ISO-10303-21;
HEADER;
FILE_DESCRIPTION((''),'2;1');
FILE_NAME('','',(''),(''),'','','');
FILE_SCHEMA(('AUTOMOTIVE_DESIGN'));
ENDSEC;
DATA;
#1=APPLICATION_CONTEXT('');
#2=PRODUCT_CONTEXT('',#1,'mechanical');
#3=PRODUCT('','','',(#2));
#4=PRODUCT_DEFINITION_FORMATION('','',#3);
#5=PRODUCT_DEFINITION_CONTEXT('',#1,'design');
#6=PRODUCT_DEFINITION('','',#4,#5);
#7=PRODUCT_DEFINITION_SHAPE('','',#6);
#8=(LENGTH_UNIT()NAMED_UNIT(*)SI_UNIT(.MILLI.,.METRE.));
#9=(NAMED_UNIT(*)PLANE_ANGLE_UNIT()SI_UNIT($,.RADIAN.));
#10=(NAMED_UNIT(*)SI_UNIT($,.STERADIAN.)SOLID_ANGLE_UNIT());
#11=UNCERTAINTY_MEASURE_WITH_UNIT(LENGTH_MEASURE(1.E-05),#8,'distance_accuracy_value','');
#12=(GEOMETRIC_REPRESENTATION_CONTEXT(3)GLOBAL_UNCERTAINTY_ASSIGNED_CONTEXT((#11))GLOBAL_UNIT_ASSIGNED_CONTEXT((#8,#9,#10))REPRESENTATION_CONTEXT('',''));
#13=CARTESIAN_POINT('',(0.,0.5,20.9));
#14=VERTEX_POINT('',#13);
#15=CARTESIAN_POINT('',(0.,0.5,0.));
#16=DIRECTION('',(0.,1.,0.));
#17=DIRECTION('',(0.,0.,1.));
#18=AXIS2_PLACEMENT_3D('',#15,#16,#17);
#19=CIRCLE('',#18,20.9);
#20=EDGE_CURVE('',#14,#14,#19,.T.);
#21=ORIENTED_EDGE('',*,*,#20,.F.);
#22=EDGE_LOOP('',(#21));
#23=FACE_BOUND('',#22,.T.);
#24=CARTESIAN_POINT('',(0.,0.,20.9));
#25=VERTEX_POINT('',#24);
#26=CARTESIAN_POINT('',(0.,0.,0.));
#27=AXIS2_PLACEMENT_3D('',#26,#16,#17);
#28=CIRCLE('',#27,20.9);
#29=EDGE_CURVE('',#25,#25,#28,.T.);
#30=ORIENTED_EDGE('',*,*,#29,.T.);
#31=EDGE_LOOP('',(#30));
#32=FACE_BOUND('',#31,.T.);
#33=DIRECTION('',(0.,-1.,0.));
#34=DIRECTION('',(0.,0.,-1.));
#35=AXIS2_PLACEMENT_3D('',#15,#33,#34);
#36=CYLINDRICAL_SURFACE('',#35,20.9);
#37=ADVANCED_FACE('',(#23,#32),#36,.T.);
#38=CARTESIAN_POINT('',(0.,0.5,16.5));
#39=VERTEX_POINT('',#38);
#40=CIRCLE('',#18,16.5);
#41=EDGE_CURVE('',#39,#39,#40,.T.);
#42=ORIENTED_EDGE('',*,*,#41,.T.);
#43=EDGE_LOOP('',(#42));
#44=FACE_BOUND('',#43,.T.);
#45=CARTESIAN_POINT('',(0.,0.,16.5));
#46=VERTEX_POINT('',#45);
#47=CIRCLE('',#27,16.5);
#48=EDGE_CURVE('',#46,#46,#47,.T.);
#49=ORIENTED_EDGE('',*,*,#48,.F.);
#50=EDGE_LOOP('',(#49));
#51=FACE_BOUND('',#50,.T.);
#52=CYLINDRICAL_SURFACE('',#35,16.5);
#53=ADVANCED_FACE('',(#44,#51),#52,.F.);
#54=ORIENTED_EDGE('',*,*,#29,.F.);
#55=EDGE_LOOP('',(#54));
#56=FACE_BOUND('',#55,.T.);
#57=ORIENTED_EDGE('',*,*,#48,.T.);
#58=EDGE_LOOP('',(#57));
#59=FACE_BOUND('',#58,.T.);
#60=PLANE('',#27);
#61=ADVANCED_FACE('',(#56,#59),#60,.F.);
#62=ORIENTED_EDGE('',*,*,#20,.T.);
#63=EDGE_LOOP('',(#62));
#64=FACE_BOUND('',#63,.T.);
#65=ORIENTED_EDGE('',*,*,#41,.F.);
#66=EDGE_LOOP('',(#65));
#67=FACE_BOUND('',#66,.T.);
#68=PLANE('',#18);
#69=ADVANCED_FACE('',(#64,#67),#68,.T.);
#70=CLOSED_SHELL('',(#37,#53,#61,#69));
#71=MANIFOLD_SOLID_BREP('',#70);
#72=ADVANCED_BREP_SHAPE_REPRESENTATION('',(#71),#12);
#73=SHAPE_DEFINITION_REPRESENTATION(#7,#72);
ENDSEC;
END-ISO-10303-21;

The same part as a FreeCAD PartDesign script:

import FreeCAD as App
import Part
import Sketcher

V = App.Vector
Q = App.Units.Quantity

doc = App.newDocument("Part")
body = doc.addObject("PartDesign::Body", "Body")

sketch1 = doc.addObject("Sketcher::SketchObject", "Sketch")
body.addObject(sketch1)
sketch1.AttachmentSupport = (doc.XZ_Plane, [""])
sketch1.MapMode = "FlatFace"
sketch1.addGeometry(Part.Circle(V(0, 0, 0), V(0, 0, 1), 21), False)
sketch1.addGeometry(Part.Circle(V(0, 0, 0), V(0, 0, 1), 16), False)
sketch1.addConstraint(Sketcher.Constraint("Coincident", 0, 3, -1, 1))
sketch1.addConstraint(Sketcher.Constraint("Coincident", 1, 3, -1, 1))
sketch1.addConstraint(Sketcher.Constraint("Diameter", 1, Q("33 mm")))
sketch1.addConstraint(Sketcher.Constraint("Diameter", 0, Q("41.8 mm")))
pad1 = doc.addObject("PartDesign::Pad", "Pad")
body.addObject(pad1)
pad1.Profile = sketch1
pad1.Length = 0.5
pad1.Reversed = True

doc.recompute()
